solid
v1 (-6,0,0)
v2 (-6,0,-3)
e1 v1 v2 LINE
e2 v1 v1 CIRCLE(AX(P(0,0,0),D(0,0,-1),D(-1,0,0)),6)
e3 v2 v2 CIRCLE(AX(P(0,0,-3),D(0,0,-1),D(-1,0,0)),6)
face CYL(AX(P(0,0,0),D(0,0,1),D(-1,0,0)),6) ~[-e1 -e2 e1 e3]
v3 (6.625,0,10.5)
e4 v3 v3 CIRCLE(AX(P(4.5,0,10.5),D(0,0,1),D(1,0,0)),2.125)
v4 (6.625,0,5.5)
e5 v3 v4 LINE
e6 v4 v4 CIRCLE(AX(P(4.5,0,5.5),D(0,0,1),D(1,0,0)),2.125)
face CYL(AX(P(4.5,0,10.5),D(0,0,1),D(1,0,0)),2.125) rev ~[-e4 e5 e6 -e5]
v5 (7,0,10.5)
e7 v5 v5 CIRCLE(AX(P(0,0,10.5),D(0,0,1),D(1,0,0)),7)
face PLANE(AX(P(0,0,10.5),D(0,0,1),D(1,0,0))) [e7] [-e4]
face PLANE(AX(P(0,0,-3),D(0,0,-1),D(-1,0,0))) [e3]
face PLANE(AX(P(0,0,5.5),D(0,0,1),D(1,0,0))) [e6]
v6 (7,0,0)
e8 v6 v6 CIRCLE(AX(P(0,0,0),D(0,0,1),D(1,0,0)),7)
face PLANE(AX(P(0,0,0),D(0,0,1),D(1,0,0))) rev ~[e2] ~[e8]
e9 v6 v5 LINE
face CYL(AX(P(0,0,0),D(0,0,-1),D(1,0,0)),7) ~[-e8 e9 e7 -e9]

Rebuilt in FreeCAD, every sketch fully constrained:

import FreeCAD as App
import Part
import Sketcher
from FreeCAD import Vector
Q = App.Units.Quantity

doc = App.newDocument("Part")
params = doc.addObject("Spreadsheet::Sheet", "Params")
for row, (alias, value) in enumerate([
    ("sketch1_diameter", "14 mm"),
    ("pad1_length", "10.5 mm"),
    ("sketch2_diameter", "4.25 mm"),
    ("pocket1_length", "5 mm"),
    ("sketch3_diameter", "12 mm"),
    ("pad2_length", "3 mm"),
], start=1):
    params.set(f"A{row}", alias)
    params.set(f"B{row}", "=" + value)
    params.setAlias(f"B{row}", alias)

body = doc.addObject("PartDesign::Body", "Body")

# Sketch on XY plane
sketch1 = doc.addObject("Sketcher::SketchObject", "Sketch")
body.addObject(sketch1)
sketch1.AttachmentSupport = (doc.XY_Plane, [""])
sketch1.MapMode = "FlatFace"
sketch1.addGeometry(Part.Circle(Vector(0, 0, 0), Vector(0, 0, 1), 7), False)
sketch1.addConstraint([
    Sketcher.Constraint("Coincident", 0, 3, -1, 1),
    Sketcher.Constraint("Diameter", 0, Q("14 mm")),
])
sketch1.setExpression("Constraints[1]", "Params.sketch1_diameter")
pad1 = doc.addObject("PartDesign::Pad", "Pad")
body.addObject(pad1)
pad1.Profile = sketch1
pad1.setExpression("Length", "Params.pad1_length")

# Sketch on XY plane
sketch2 = doc.addObject("Sketcher::SketchObject", "Sketch001")
body.addObject(sketch2)
sketch2.AttachmentSupport = (doc.XY_Plane, [""])
sketch2.MapMode = "FlatFace"
sketch2.AttachmentOffset = App.Placement(Vector(0, 0, 10.5), App.Rotation())
sketch2.addGeometry(Part.Circle(Vector(4.5, 0, 0), Vector(0, 0, 1), 2.1), False)
sketch2.addConstraint([
    Sketcher.Constraint("PointOnObject", 0, 3, -1),
    Sketcher.Constraint("Diameter", 0, Q("4.25 mm")),
    Sketcher.Constraint("DistanceX", -1, 1, 0, 3, Q("4.5 mm")),
])
sketch2.setExpression("Constraints[1]", "Params.sketch2_diameter")
pocket1 = doc.addObject("PartDesign::Pocket", "Pocket")
body.addObject(pocket1)
pocket1.Profile = sketch2
pocket1.setExpression("Length", "Params.pocket1_length")

# Sketch on XY plane
sketch3 = doc.addObject("Sketcher::SketchObject", "Sketch002")
body.addObject(sketch3)
sketch3.AttachmentSupport = (doc.XY_Plane, [""])
sketch3.MapMode = "FlatFace"
sketch3.addGeometry(Part.Circle(Vector(0, 0, 0), Vector(0, 0, 1), 6), False)
sketch3.addConstraint([
    Sketcher.Constraint("Coincident", 0, 3, -1, 1),
    Sketcher.Constraint("Diameter", 0, Q("12 mm")),
])
sketch3.setExpression("Constraints[1]", "Params.sketch3_diameter")
pad2 = doc.addObject("PartDesign::Pad", "Pad001")
body.addObject(pad2)
pad2.Profile = sketch3
pad2.setExpression("Length", "Params.pad2_length")
pad2.Reversed = True

doc.recompute()
